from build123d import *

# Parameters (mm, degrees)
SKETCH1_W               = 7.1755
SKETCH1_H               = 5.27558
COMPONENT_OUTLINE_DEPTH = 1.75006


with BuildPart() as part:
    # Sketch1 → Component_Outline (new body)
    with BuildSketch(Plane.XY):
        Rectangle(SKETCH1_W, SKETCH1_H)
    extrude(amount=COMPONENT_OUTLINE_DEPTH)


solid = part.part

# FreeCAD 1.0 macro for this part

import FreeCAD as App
import Part
import Sketcher


def add_polygon(sketch, points):
    """Adds a closed chain of lines whose ends are joined by coincident constraints."""
    first, n = sketch.GeometryCount, len(points)
    for a, b in zip(points, points[1:] + points[:1]):
        sketch.addGeometry(Part.LineSegment(App.Vector(*a, 0), App.Vector(*b, 0)), False)
    for i in range(n):
        sketch.addConstraint(Sketcher.Constraint("Coincident", first + i, 2, first + (i + 1) % n, 1))

doc = App.newDocument("Part")
params = doc.addObject("Spreadsheet::Sheet", "Params")
for row, (alias, value) in enumerate([
    ("pad1_length", "1.75006 mm"),
], start=1):
    params.set(f"A{row}", alias)
    params.set(f"B{row}", "=" + value)
    params.setAlias(f"B{row}", alias)

body = doc.addObject("PartDesign::Body", "Body")

# Sketch on XY plane
sketch1 = body.newObject("Sketcher::SketchObject", "Sketch")
sketch1.AttachmentSupport = (doc.getObject("XY_Plane"), [""])
sketch1.MapMode = "FlatFace"
add_polygon(sketch1, [(-4, 3), (-4, -3), (4, -3), (4, 3)])  # lines 0-3
sketch1.addConstraint([
    Sketcher.Constraint("Vertical", 0),
    Sketcher.Constraint("Horizontal", 1),
    Sketcher.Constraint("Vertical", 2),
    Sketcher.Constraint("Horizontal", 3),
    Sketcher.Constraint("Symmetric", 0, 2, 2, 2, -1, 1),
    Sketcher.Constraint("DistanceX", 1, 1, 1, 2, 7.1755),
    Sketcher.Constraint("DistanceY", 0, 2, 0, 1, 5.27558),
])
pad1 = body.newObject("PartDesign::Pad", "Pad")
pad1.Profile = sketch1
pad1.setExpression("Length", "Params.pad1_length")

doc.recompute()
